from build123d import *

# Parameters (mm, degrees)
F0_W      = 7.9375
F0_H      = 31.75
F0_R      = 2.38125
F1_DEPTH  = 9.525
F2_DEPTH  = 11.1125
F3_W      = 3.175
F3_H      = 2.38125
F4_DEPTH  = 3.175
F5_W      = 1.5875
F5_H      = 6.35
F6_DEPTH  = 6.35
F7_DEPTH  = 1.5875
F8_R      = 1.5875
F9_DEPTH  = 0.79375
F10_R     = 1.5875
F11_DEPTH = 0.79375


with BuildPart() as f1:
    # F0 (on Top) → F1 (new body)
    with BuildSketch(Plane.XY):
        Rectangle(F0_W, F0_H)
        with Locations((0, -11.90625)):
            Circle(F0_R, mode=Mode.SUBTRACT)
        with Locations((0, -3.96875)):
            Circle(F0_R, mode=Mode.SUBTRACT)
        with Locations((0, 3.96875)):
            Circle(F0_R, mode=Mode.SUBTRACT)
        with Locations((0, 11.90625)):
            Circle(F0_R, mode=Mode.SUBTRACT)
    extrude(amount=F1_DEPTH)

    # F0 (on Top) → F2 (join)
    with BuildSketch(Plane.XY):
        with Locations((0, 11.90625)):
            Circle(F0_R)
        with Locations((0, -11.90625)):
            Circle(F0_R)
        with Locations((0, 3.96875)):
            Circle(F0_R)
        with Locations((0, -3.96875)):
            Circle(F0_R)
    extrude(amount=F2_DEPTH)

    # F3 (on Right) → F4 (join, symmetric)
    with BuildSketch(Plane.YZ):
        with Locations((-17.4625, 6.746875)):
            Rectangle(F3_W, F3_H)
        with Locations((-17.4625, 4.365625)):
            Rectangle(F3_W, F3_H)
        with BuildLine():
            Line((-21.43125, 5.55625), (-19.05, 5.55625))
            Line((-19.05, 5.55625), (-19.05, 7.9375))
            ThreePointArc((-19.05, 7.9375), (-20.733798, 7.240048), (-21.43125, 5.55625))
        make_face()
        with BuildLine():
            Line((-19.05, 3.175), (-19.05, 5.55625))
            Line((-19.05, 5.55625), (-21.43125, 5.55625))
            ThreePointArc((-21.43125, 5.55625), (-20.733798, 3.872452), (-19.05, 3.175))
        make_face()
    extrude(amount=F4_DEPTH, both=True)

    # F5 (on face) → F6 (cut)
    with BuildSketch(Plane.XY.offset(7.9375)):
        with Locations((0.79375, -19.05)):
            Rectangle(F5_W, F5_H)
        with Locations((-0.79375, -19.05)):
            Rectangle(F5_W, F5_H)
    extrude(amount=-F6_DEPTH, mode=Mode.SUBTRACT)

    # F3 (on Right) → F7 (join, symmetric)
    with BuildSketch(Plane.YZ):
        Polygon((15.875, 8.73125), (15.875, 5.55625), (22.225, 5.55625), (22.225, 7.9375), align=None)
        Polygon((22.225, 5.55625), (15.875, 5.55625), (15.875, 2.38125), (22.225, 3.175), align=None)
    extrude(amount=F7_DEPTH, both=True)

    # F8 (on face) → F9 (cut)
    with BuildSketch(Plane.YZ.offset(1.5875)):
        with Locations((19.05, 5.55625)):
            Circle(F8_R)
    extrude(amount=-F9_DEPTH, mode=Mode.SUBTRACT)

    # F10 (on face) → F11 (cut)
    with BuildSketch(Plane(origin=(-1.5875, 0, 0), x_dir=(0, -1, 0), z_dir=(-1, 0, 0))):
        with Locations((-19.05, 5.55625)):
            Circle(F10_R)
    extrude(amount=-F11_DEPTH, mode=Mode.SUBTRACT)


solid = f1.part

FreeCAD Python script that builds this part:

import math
import FreeCAD as App
import Part
import Sketcher

V = App.Vector
Q = App.Units.Quantity

doc = App.newDocument("Part")
body = doc.addObject("PartDesign::Body", "Body")

# Sketch on XY plane
sketch1 = body.newObject("Sketcher::SketchObject", "Sketch")
sketch1.AttachmentSupport = (doc.getObject("XY_Plane"), [""])
sketch1.MapMode = "FlatFace"
sketch1.addGeometry(Part.LineSegment(V(-3.96875, 15.875, 0), V(-3.96875, -15.875, 0)), False)
sketch1.addGeometry(Part.LineSegment(V(-3.96875, -15.875, 0), V(3.96875, -15.875, 0)), False)
sketch1.addGeometry(Part.LineSegment(V(3.96875, -15.875, 0), V(3.96875, 15.875, 0)), False)
sketch1.addGeometry(Part.LineSegment(V(3.96875, 15.875, 0), V(-3.96875, 15.875, 0)), False)
sketch1.addGeometry(Part.Circle(V(0, -11.90625, 0), V(0, 0, 1), 2.38125), False)
sketch1.addGeometry(Part.Circle(V(0, -3.96875, 0), V(0, 0, 1), 2.38125), False)
sketch1.addGeometry(Part.Circle(V(0, 3.96875, 0), V(0, 0, 1), 2.38125), False)
sketch1.addGeometry(Part.Circle(V(0, 11.90625, 0), V(0, 0, 1), 2.38125), False)
sketch1.addConstraint(Sketcher.Constraint("Coincident", 0, 2, 1, 1))
sketch1.addConstraint(Sketcher.Constraint("Coincident", 1, 2, 2, 1))
sketch1.addConstraint(Sketcher.Constraint("Coincident", 2, 2, 3, 1))
sketch1.addConstraint(Sketcher.Constraint("Coincident", 3, 2, 0, 1))
sketch1.addConstraint(Sketcher.Constraint("Vertical", 0))
sketch1.addConstraint(Sketcher.Constraint("Horizontal", 1))
sketch1.addConstraint(Sketcher.Constraint("Vertical", 2))
sketch1.addConstraint(Sketcher.Constraint("Horizontal", 3))
sketch1.addConstraint(Sketcher.Constraint("Equal", 4, 5))
sketch1.addConstraint(Sketcher.Constraint("Equal", 5, 6))
sketch1.addConstraint(Sketcher.Constraint("Equal", 6, 7))
sketch1.addConstraint(Sketcher.Constraint("Symmetric", 5, 3, 6, 3, -1, 1))
sketch1.addConstraint(Sketcher.Constraint("Symmetric", 4, 3, 7, 3, -1, 1))
sketch1.addConstraint(Sketcher.Constraint("Symmetric", 0, 2, 2, 2, -1, 1))
sketch1.addConstraint(Sketcher.Constraint("PointOnObject", 4, 3, -2))
sketch1.addConstraint(Sketcher.Constraint("PointOnObject", 5, 3, -2))
sketch1.addConstraint(Sketcher.Constraint("Diameter", 4, Q("0.1875 in")))
sketch1.addConstraint(Sketcher.Constraint("DistanceY", 0, 2, 0, 1, Q("1.25 in")))
sketch1.addConstraint(Sketcher.Constraint("DistanceX", 1, 1, 1, 2, Q("0.3125 in")))
sketch1.addConstraint(Sketcher.Constraint("DistanceY", 4, 3, -1, 1, Q("0.46875 in")))
sketch1.addConstraint(Sketcher.Constraint("DistanceY", 5, 3, -1, 1, Q("0.15625 in")))
pad1 = body.newObject("PartDesign::Pad", "Pad")
pad1.Profile = sketch1
pad1.Length = Q("0.375 in")

# Sketch on XY plane
sketch2 = body.newObject("Sketcher::SketchObject", "Sketch001")
sketch2.AttachmentSupport = (doc.getObject("XY_Plane"), [""])
sketch2.MapMode = "FlatFace"
sketch2.addGeometry(Part.Circle(V(0, 11.90625, 0), V(0, 0, 1), 2.38125), False)
sketch2.addGeometry(Part.Circle(V(0, -11.90625, 0), V(0, 0, 1), 2.38125), False)
sketch2.addGeometry(Part.Circle(V(0, 3.96875, 0), V(0, 0, 1), 2.38125), False)
sketch2.addGeometry(Part.Circle(V(0, -3.96875, 0), V(0, 0, 1), 2.38125), False)
sketch2.addConstraint(Sketcher.Constraint("Equal", 0, 1))
sketch2.addConstraint(Sketcher.Constraint("Equal", 1, 2))
sketch2.addConstraint(Sketcher.Constraint("Equal", 2, 3))
sketch2.addConstraint(Sketcher.Constraint("Symmetric", 0, 3, 1, 3, -1, 1))
sketch2.addConstraint(Sketcher.Constraint("Symmetric", 2, 3, 3, 3, -1, 1))
sketch2.addConstraint(Sketcher.Constraint("PointOnObject", 0, 3, -2))
sketch2.addConstraint(Sketcher.Constraint("PointOnObject", 2, 3, -2))
sketch2.addConstraint(Sketcher.Constraint("Diameter", 0, Q("0.1875 in")))
sketch2.addConstraint(Sketcher.Constraint("DistanceY", -1, 1, 0, 3, Q("0.46875 in")))
sketch2.addConstraint(Sketcher.Constraint("DistanceY", -1, 1, 2, 3, Q("0.15625 in")))
pad2 = body.newObject("PartDesign::Pad", "Pad001")
pad2.Profile = sketch2
pad2.Length = Q("0.4375 in")

# Sketch on YZ plane
sketch3 = body.newObject("Sketcher::SketchObject", "Sketch002")
sketch3.AttachmentSupport = (doc.getObject("YZ_Plane"), [""])
sketch3.MapMode = "FlatFace"
sketch3.addGeometry(Part.LineSegment(V(-19.05, 3.175, 0), V(-15.875, 3.175, 0)), False)
sketch3.addGeometry(Part.LineSegment(V(-15.875, 3.175, 0), V(-15.875, 7.9375, 0)), False)
sketch3.addGeometry(Part.LineSegment(V(-15.875, 7.9375, 0), V(-19.05, 7.9375, 0)), False)
sketch3.addGeometry(Part.ArcOfCircle(Part.Circle(V(-19.05, 5.55625, 0), V(0, 0, 1), 2.38125), math.radians(90.000002), math.radians(179.999998)), False)
sketch3.addGeometry(Part.ArcOfCircle(Part.Circle(V(-19.05, 5.55625, 0), V(0, 0, 1), 2.38125), math.radians(-179.999998), math.radians(-90.000002)), False)
sketch3.addConstraint(Sketcher.Constraint("Coincident", 0, 2, 1, 1))
sketch3.addConstraint(Sketcher.Constraint("Coincident", 1, 2, 2, 1))
sketch3.addConstraint(Sketcher.Constraint("Tangent", 2, 2, 3, 1))
sketch3.addConstraint(Sketcher.Constraint("Tangent", 3, 2, 4, 1))
sketch3.addConstraint(Sketcher.Constraint("Tangent", 4, 2, 0, 1))
sketch3.addConstraint(Sketcher.Constraint("Horizontal", 0))
sketch3.addConstraint(Sketcher.Constraint("Vertical", 1))
sketch3.addConstraint(Sketcher.Constraint("Horizontal", 2))
sketch3.addConstraint(Sketcher.Constraint("Equal", 3, 4))
sketch3.addConstraint(Sketcher.Constraint("Horizontal", 4, 3, 3, 2))
sketch3.addConstraint(Sketcher.Constraint("Radius", 3, Q("0.09375 in")))
sketch3.addConstraint(Sketcher.Constraint("DistanceX", 0, 1, 0, 2, Q("0.125 in")))
sketch3.addConstraint(Sketcher.Constraint("DistanceX", 3, 3, -1, 1, Q("0.75 in")))
sketch3.addConstraint(Sketcher.Constraint("DistanceY", -1, 1, 3, 3, Q("0.21875 in")))
pad3 = body.newObject("PartDesign::Pad", "Pad002")
pad3.Profile = sketch3
pad3.Length = Q("0.25 in")
pad3.Midplane = True

# Sketch on XY plane
sketch4 = body.newObject("Sketcher::SketchObject", "Sketch003")
sketch4.AttachmentSupport = (doc.getObject("XY_Plane"), [""])
sketch4.MapMode = "FlatFace"
sketch4.AttachmentOffset = App.Placement(V(0, 0, 0.3125 * 25.4), App.Rotation())
sketch4.addGeometry(Part.LineSegment(V(1.5875, -22.225, 0), V(1.5875, -15.875, 0)), False)
sketch4.addGeometry(Part.LineSegment(V(1.5875, -15.875, 0), V(-1.5875, -15.875, 0)), False)
sketch4.addGeometry(Part.LineSegment(V(-1.5875, -15.875, 0), V(-1.5875, -22.225, 0)), False)
sketch4.addGeometry(Part.LineSegment(V(-1.5875, -22.225, 0), V(1.5875, -22.225, 0)), False)
sketch4.addConstraint(Sketcher.Constraint("Coincident", 0, 2, 1, 1))
sketch4.addConstraint(Sketcher.Constraint("Coincident", 1, 2, 2, 1))
sketch4.addConstraint(Sketcher.Constraint("Coincident", 2, 2, 3, 1))
sketch4.addConstraint(Sketcher.Constraint("Coincident", 3, 2, 0, 1))
sketch4.addConstraint(Sketcher.Constraint("Vertical", 0))
sketch4.addConstraint(Sketcher.Constraint("Horizontal", 1))
sketch4.addConstraint(Sketcher.Constraint("Vertical", 2))
sketch4.addConstraint(Sketcher.Constraint("Horizontal", 3))
sketch4.addConstraint(Sketcher.Constraint("DistanceY", 0, 1, 0, 2, Q("0.25 in")))
sketch4.addConstraint(Sketcher.Constraint("DistanceX", 1, 2, 1, 1, Q("0.125 in")))
sketch4.addConstraint(Sketcher.Constraint("DistanceX", -1, 1, 0, 2, Q("0.0625 in")))
sketch4.addConstraint(Sketcher.Constraint("DistanceY", 0, 2, -1, 1, Q("0.625 in")))
pocket1 = body.newObject("PartDesign::Pocket", "Pocket")
pocket1.Profile = sketch4
pocket1.Length = Q("0.25 in")

# Sketch on YZ plane
sketch5 = body.newObject("Sketcher::SketchObject", "Sketch004")
sketch5.AttachmentSupport = (doc.getObject("YZ_Plane"), [""])
sketch5.MapMode = "FlatFace"
sketch5.addGeometry(Part.LineSegment(V(15.875, 8.73125, 0), V(15.875, 2.38125, 0)), False)
sketch5.addGeometry(Part.LineSegment(V(15.875, 2.38125, 0), V(22.225, 3.175, 0)), False)
sketch5.addGeometry(Part.LineSegment(V(22.225, 3.175, 0), V(22.225, 7.9375, 0)), False)
sketch5.addGeometry(Part.LineSegment(V(22.225, 7.9375, 0), V(15.875, 8.73125, 0)), False)
sketch5.addConstraint(Sketcher.Constraint("Coincident", 0, 2, 1, 1))
sketch5.addConstraint(Sketcher.Constraint("Coincident", 1, 2, 2, 1))
sketch5.addConstraint(Sketcher.Constraint("Coincident", 2, 2, 3, 1))
sketch5.addConstraint(Sketcher.Constraint("Coincident", 3, 2, 0, 1))
sketch5.addConstraint(Sketcher.Constraint("Vertical", 0))
sketch5.addConstraint(Sketcher.Constraint("Vertical", 2))
sketch5.addConstraint(Sketcher.Constraint("Equal", 1, 3))
sketch5.addConstraint(Sketcher.Constraint("DistanceY", 0, 2, 0, 1, Q("0.25 in")))
sketch5.addConstraint(Sketcher.Constraint("DistanceY", 2, 1, 2, 2, Q("0.1875 in")))
sketch5.addConstraint(Sketcher.Constraint("DistanceX", 0, 2, 1, 2, Q("0.25 in")))
sketch5.addConstraint(Sketcher.Constraint("DistanceX", -1, 1, 0, 2, Q("0.625 in")))
sketch5.addConstraint(Sketcher.Constraint("DistanceY", -1, 1, 0, 2, Q("0.09375 in")))
pad4 = body.newObject("PartDesign::Pad", "Pad003")
pad4.Profile = sketch5
pad4.Length = Q("0.125 in")
pad4.Midplane = True

# Sketch on YZ plane
sketch6 = body.newObject("Sketcher::SketchObject", "Sketch005")
sketch6.AttachmentSupport = (doc.getObject("YZ_Plane"), [""])
sketch6.MapMode = "FlatFace"
sketch6.AttachmentOffset = App.Placement(V(0, 0, 0.0625 * 25.4), App.Rotation())
sketch6.addGeometry(Part.Circle(V(19.05, 5.55625, 0), V(0, 0, 1), 1.5875), False)
sketch6.addConstraint(Sketcher.Constraint("Diameter", 0, Q("0.125 in")))
sketch6.addConstraint(Sketcher.Constraint("DistanceX", -1, 1, 0, 3, Q("0.75 in")))
sketch6.addConstraint(Sketcher.Constraint("DistanceY", -1, 1, 0, 3, Q("0.21875 in")))
pocket2 = body.newObject("PartDesign::Pocket", "Pocket001")
pocket2.Profile = sketch6
pocket2.Length = Q("0.03125 in")

# Sketch on YZ plane
sketch7 = body.newObject("Sketcher::SketchObject", "Sketch006")
sketch7.AttachmentSupport = (doc.getObject("YZ_Plane"), [""])
sketch7.MapMode = "FlatFace"
sketch7.AttachmentOffset = App.Placement(V(0, 0, -0.0625 * 25.4), App.Rotation())
sketch7.addGeometry(Part.Circle(V(19.05, 5.55625, 0), V(0, 0, 1), 1.5875), False)
sketch7.addConstraint(Sketcher.Constraint("Diameter", 0, Q("0.125 in")))
sketch7.addConstraint(Sketcher.Constraint("DistanceX", -1, 1, 0, 3, Q("0.75 in")))
sketch7.addConstraint(Sketcher.Constraint("DistanceY", -1, 1, 0, 3, Q("0.21875 in")))
pocket3 = body.newObject("PartDesign::Pocket", "Pocket002")
pocket3.Profile = sketch7
pocket3.Length = Q("0.03125 in")
pocket3.Reversed = True

doc.recompute()
